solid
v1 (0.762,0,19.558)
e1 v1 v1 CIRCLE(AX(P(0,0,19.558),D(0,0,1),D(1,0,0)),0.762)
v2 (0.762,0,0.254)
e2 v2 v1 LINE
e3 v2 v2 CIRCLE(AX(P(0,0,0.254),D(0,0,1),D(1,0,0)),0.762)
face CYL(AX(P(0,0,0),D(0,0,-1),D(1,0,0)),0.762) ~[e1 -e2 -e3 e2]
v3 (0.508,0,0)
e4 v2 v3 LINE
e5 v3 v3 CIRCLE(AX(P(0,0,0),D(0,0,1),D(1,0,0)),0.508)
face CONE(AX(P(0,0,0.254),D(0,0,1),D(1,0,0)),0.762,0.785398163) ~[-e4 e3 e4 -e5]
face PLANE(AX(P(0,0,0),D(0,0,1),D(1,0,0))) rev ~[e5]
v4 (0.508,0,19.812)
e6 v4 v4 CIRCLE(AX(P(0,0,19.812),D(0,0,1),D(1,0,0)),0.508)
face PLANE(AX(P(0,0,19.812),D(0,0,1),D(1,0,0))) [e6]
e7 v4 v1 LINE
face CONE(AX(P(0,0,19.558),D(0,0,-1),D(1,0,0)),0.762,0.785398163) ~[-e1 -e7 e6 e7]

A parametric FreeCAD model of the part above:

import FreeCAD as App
import Part
import Sketcher
from FreeCAD import Vector
Q = App.Units.Quantity


def edges_at(feature, points):
    """Names of the edges that pass closest to the given points."""
    edges = feature.Shape.Edges
    near = lambda p: min(range(len(edges)), key=lambda i: edges[i].distToShape(Part.Vertex(*p))[0])
    return sorted({f"Edge{near(p) + 1}" for p in points})

doc = App.newDocument("Part")
body = doc.addObject("PartDesign::Body", "Body")

sketch1 = body.newObject("Sketcher::SketchObject", "Sketch")
sketch1.AttachmentSupport = (doc.getObject("XY_Plane"), [""])
sketch1.MapMode = "FlatFace"
sketch1.addGeometry(Part.Circle(Vector(0, 0, 0), Vector(0, 0, 1), 0.8), False)
sketch1.addConstraint([
    Sketcher.Constraint("Coincident", 0, 3, -1, 1),
    Sketcher.Constraint("Diameter", 0, Q("0.06 in")),
])
pad1 = body.newObject("PartDesign::Pad", "Pad")
pad1.Profile = sketch1
pad1.Length = Q("0.78 in")
doc.recompute()

chamfer = body.newObject("PartDesign::Chamfer", "Chamfer")
chamfer.Base = (pad1, edges_at(pad1, [(-0.762, 0, 19.812)]))
chamfer.ChamferType = "Two distances"
chamfer.Size = Q("0.01 in")
chamfer.Size2 = Q("0.01 in")
doc.recompute()

chamfer2 = body.newObject("PartDesign::Chamfer", "Chamfer001")
chamfer2.Base = (chamfer, edges_at(chamfer, [(-0.762, 0, 0)]))
chamfer2.ChamferType = "Two distances"
chamfer2.Size = Q("0.01 in")
chamfer2.Size2 = Q("0.01 in")

doc.recompute()
